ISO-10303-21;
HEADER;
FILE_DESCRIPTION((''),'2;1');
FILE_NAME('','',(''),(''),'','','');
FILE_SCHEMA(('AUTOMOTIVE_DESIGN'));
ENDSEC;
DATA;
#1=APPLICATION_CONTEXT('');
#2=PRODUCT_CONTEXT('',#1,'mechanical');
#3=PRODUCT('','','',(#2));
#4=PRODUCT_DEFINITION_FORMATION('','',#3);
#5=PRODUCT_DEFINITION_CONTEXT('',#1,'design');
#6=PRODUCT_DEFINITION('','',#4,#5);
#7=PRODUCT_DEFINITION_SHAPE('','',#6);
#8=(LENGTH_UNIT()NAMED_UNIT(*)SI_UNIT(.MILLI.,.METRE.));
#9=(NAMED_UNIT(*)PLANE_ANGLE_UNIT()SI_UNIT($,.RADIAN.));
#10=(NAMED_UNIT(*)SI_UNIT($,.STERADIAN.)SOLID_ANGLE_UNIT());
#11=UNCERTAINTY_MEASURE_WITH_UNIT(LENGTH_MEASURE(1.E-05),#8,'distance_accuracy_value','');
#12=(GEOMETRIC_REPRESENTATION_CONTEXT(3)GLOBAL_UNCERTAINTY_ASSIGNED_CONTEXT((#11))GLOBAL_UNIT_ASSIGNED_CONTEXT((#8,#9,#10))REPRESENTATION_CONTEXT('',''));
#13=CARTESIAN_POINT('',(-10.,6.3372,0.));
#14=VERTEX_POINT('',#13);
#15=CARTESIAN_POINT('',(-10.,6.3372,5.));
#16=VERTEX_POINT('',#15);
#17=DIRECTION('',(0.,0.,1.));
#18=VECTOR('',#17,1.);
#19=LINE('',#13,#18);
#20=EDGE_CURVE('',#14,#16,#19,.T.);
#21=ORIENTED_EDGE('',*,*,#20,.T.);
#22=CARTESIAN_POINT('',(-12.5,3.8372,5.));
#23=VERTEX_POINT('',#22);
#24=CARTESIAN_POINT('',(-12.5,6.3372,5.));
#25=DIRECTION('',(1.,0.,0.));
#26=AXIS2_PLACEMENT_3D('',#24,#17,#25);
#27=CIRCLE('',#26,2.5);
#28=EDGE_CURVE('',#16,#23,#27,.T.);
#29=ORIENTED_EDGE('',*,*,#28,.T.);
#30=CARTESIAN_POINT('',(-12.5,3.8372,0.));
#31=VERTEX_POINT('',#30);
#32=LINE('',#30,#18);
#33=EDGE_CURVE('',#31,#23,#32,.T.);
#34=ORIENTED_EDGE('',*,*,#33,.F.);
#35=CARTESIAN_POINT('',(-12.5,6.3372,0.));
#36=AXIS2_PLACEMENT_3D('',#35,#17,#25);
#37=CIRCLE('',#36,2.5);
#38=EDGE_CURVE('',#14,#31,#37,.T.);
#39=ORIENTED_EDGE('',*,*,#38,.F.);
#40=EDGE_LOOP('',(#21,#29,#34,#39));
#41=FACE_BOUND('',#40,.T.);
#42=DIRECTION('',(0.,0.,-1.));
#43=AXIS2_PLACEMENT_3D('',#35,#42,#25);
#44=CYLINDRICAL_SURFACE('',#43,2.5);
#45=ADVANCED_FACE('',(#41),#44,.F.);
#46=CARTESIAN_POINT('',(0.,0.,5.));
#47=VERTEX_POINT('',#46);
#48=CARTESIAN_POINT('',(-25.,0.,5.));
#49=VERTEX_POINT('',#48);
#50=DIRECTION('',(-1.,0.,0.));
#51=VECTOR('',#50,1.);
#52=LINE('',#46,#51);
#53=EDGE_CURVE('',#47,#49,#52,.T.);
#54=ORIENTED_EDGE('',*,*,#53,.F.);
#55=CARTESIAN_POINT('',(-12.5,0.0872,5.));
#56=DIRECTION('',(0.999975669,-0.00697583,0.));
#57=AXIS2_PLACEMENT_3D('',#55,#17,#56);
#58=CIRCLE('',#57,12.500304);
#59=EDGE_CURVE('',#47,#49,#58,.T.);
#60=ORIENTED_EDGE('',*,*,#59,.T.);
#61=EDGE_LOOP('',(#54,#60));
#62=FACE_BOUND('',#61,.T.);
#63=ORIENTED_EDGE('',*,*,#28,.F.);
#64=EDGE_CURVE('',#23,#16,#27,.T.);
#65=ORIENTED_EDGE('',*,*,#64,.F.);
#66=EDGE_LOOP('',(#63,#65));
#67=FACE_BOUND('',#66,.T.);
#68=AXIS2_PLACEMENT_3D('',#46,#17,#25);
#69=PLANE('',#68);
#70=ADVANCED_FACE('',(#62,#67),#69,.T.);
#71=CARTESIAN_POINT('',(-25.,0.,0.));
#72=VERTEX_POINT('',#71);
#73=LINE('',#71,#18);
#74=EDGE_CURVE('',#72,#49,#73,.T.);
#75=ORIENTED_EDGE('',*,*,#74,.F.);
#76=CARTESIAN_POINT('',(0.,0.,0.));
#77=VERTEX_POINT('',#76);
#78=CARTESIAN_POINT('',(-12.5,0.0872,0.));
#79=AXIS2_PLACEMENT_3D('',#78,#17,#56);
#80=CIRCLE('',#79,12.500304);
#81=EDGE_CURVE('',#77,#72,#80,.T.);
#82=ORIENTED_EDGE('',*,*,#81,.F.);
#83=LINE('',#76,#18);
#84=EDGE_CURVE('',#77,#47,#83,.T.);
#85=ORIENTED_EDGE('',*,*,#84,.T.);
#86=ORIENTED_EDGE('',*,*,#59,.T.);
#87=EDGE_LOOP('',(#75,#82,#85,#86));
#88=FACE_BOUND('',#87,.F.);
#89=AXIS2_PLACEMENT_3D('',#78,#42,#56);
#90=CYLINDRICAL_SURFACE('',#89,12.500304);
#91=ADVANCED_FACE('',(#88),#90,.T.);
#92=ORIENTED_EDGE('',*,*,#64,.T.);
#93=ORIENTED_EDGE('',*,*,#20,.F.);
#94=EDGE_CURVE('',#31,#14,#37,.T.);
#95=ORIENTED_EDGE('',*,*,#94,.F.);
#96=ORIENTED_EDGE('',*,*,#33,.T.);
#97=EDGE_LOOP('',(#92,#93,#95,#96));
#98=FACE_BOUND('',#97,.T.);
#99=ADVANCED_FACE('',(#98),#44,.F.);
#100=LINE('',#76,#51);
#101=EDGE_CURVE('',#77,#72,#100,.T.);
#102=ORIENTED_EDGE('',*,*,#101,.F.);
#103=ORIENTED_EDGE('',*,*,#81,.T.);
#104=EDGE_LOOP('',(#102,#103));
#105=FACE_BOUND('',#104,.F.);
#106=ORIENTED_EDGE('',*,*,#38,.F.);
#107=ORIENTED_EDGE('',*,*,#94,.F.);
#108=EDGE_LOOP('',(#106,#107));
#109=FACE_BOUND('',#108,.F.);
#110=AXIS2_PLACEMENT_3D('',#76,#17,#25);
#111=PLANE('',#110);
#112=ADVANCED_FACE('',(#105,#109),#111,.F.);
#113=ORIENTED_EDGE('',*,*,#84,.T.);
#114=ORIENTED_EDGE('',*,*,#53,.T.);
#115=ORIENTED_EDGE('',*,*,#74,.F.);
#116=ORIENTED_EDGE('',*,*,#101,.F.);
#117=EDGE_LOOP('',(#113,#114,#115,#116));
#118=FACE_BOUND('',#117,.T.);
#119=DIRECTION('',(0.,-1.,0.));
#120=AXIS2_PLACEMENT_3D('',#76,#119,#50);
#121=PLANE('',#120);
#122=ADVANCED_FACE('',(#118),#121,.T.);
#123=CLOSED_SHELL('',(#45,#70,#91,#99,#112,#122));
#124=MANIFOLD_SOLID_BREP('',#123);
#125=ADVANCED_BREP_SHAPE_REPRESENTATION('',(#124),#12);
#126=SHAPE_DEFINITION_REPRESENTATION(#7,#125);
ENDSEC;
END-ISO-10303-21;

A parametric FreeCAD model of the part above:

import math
import FreeCAD as App
import Part
import Sketcher
from FreeCAD import Vector

doc = App.newDocument("Part")
body = doc.addObject("PartDesign::Body", "Body")

# Sketch on XY plane
sketch1 = body.newObject("Sketcher::SketchObject", "Sketch")
sketch1.AttachmentSupport = (doc.getObject("XY_Plane"), [""])
sketch1.MapMode = "FlatFace"
sketch1.addGeometry([
    Part.LineSegment(Vector(-25, 0, 0), Vector(0, 0, 0)),
    Part.ArcOfCircle(Part.Circle(Vector(-12.5, 0.0872, 0), Vector(0, 0, 1), 12.500304), math.radians(-0.399689), math.radians(180.399689)),
    Part.Circle(Vector(-12.5, 6.3372, 0), Vector(0, 0, 1), 2.5),
], False)
sketch1.addConstraint([
    Sketcher.Constraint("Coincident", 0, 1, 1, 2),
    Sketcher.Constraint("Coincident", 1, 1, 0, 2),
    Sketcher.Constraint("Horizontal", 0),
    Sketcher.Constraint("Coincident", 1, 1, -1, 1),
    Sketcher.Constraint("Vertical", 1, 3, 2, 3),
    Sketcher.Constraint("Diameter", 2, 5.0),
    Sketcher.Constraint("DistanceX", 0, 1, 0, 2, 25.0),
    Sketcher.Constraint("DistanceY", 1, 3, 2, 3, 6.25),
    Sketcher.Constraint("Radius", 1, 12.5003),
])
pad1 = body.newObject("PartDesign::Pad", "Pad")
pad1.Profile = sketch1
pad1.Length = 5

doc.recompute()
